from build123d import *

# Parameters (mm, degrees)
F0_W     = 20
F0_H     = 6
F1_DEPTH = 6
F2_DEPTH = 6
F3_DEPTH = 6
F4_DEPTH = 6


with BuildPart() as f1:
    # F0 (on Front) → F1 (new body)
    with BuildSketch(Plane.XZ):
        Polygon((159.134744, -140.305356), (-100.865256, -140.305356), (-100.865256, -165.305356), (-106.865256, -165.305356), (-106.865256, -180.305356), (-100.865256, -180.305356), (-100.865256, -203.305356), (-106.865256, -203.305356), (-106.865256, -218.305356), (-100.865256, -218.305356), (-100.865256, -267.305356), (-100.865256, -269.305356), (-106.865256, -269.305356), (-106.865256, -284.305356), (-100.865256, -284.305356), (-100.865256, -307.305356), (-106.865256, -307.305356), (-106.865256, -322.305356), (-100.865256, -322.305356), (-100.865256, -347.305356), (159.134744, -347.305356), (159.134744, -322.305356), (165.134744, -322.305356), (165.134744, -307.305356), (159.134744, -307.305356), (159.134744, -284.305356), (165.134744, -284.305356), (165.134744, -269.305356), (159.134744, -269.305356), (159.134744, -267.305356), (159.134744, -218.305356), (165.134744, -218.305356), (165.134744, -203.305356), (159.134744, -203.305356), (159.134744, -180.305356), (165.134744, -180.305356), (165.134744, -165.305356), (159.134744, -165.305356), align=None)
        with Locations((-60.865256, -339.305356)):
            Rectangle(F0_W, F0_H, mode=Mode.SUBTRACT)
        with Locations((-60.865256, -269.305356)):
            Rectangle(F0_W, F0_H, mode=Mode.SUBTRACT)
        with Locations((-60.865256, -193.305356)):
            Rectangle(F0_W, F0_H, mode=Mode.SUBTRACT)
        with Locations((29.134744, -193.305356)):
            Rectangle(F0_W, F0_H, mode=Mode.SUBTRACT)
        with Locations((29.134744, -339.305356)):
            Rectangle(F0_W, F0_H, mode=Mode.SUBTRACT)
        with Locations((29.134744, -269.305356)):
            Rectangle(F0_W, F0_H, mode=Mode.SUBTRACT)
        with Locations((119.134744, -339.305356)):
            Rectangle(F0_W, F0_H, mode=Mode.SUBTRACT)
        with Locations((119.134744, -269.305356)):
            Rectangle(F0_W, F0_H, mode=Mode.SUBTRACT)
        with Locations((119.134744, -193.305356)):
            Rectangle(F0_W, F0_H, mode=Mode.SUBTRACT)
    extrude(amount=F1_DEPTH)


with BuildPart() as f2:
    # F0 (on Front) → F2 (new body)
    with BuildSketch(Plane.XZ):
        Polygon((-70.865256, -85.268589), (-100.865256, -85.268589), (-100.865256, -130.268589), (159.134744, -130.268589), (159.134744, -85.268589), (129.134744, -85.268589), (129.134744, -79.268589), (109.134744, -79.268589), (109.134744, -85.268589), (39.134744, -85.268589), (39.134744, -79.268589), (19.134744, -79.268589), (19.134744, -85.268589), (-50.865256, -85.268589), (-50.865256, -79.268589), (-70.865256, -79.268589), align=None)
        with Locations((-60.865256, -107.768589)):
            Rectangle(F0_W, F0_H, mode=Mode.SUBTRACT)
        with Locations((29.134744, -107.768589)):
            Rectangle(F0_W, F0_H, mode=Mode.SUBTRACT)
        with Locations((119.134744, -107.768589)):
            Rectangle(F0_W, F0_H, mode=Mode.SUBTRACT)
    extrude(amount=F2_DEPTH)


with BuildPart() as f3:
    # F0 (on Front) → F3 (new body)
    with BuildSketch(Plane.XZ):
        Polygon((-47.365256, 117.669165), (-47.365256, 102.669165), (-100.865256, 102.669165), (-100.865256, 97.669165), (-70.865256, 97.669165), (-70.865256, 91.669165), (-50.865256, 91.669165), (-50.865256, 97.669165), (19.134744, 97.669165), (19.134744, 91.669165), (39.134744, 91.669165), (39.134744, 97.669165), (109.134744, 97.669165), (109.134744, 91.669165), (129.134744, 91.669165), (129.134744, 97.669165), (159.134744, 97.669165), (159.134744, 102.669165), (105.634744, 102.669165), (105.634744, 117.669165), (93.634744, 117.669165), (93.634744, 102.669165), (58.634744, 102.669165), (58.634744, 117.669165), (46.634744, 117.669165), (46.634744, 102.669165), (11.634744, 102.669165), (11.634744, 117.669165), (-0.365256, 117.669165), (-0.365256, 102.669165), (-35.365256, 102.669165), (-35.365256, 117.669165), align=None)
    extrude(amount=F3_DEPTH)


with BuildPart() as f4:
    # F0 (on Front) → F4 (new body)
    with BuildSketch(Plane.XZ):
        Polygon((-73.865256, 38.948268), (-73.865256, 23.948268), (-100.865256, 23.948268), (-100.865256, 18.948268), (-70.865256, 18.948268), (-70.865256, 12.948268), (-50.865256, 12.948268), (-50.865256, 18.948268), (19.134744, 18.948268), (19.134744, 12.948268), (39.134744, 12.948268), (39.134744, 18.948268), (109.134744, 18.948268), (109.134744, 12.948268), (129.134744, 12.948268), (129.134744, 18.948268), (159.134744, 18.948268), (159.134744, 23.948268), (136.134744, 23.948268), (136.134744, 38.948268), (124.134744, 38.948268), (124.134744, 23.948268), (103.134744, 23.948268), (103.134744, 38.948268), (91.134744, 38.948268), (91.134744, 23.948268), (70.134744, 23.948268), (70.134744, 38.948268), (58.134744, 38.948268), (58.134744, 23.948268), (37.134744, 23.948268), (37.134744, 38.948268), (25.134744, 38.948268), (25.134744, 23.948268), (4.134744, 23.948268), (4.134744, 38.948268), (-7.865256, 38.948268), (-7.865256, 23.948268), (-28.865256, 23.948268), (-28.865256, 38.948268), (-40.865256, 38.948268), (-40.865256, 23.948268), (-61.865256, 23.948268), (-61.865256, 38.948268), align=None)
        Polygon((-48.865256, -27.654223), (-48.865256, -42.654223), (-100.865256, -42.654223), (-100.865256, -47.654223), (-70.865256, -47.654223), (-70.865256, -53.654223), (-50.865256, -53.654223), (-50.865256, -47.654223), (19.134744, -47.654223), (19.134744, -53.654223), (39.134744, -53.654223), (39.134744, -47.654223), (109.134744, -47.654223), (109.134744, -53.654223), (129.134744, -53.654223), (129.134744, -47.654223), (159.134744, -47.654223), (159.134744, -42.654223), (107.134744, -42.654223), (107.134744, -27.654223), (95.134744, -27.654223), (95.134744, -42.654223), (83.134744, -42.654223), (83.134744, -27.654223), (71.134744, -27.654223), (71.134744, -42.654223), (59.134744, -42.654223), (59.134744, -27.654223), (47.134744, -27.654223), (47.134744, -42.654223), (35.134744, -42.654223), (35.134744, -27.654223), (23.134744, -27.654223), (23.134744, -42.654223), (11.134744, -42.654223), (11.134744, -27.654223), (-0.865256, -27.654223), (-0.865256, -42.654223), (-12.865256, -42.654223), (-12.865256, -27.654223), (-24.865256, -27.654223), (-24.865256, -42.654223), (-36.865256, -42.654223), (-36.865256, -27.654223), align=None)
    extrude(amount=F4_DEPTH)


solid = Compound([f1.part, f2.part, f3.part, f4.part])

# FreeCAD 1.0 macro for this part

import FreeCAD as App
import Part
import Sketcher
from FreeCAD import Vector


def add_polygon(sketch, points):
    """Adds a closed chain of lines whose ends are joined by coincident constraints."""
    first, n = sketch.GeometryCount, len(points)
    for a, b in zip(points, points[1:] + points[:1]):
        sketch.addGeometry(Part.LineSegment(App.Vector(*a, 0), App.Vector(*b, 0)), False)
    for i in range(n):
        sketch.addConstraint(Sketcher.Constraint("Coincident", first + i, 2, first + (i + 1) % n, 1))

doc = App.newDocument("Part")
params = doc.addObject("Spreadsheet::Sheet", "Params")
for row, (alias, value) in enumerate([
    ("sketch1_width", "260 mm"),
    ("sketch1_width2", "6 mm"),
    ("sketch1_width3", "20 mm"),
    ("sketch1_height", "25 mm"),
    ("sketch1_height2", "15 mm"),
    ("pad1_length", "6 mm"),
    ("sketch2_width", "30 mm"),
    ("sketch2_width2", "260 mm"),
    ("sketch2_width3", "20 mm"),
    ("sketch2_height", "45 mm"),
    ("sketch2_height2", "6 mm"),
    ("pad2_length", "6 mm"),
    ("sketch3_width", "30 mm"),
    ("sketch3_width2", "20 mm"),
    ("sketch3_width3", "70 mm"),
    ("sketch3_width4", "12 mm"),
    ("sketch3_width5", "35 mm"),
    ("pad3_length", "6 mm"),
    ("sketch4_width", "27 mm"),
    ("sketch4_width2", "30 mm"),
    ("sketch4_width3", "20 mm"),
    ("sketch4_width4", "70 mm"),
    ("sketch4_width5", "23 mm"),
    ("pad4_length", "6 mm"),
], start=1):
    params.set(f"A{row}", alias)
    params.set(f"B{row}", "=" + value)
    params.setAlias(f"B{row}", alias)

body = doc.addObject("PartDesign::Body", "Body")

# Sketch on XZ plane
sketch1 = body.newObject("Sketcher::SketchObject", "Sketch")
sketch1.AttachmentSupport = (doc.getObject("XZ_Plane"), [""])
sketch1.MapMode = "FlatFace"
add_polygon(sketch1, [(159.134744, -140.305356), (-100.865256, -140.305356), (-100.865256, -165.305356), (-106.865256, -165.305356), (-106.865256, -180.305356), (-100.865256, -180.305356), (-100.865256, -203.305356), (-106.865256, -203.305356), (-106.865256, -218.305356), (-100.865256, -218.305356), (-100.865256, -269.305356), (-106.865256, -269.305356), (-106.865256, -284.305356), (-100.865256, -284.305356), (-100.865256, -307.305356), (-106.865256, -307.305356), (-106.865256, -322.305356), (-100.865256, -322.305356), (-100.865256, -347.305356), (159.134744, -347.305356), (159.134744, -322.305356), (165.134744, -322.305356), (165.134744, -307.305356), (159.134744, -307.305356), (159.134744, -284.305356), (165.134744, -284.305356), (165.134744, -269.305356), (159.134744, -269.305356), (159.134744, -218.305356), (165.134744, -218.305356), (165.134744, -203.305356), (159.134744, -203.305356), (159.134744, -180.305356), (165.134744, -180.305356), (165.134744, -165.305356), (159.134744, -165.305356)])  # lines 0-35
add_polygon(sketch1, [(-50.865256, -342.305356), (-70.865256, -342.305356), (-70.865256, -336.305356), (-50.865256, -336.305356)])  # lines 36-39
add_polygon(sketch1, [(-50.865256, -272.305356), (-70.865256, -272.305356), (-70.865256, -266.305356), (-50.865256, -266.305356)])  # lines 40-43
add_polygon(sketch1, [(39.134744, -342.305356), (19.134744, -342.305356), (19.134744, -336.305356), (39.134744, -336.305356)])  # lines 44-47
add_polygon(sketch1, [(129.134744, -342.305356), (109.134744, -342.305356), (109.134744, -336.305356), (129.134744, -336.305356)])  # lines 48-51
add_polygon(sketch1, [(39.134744, -272.305356), (19.134744, -272.305356), (19.134744, -266.305356), (39.134744, -266.305356)])  # lines 52-55
add_polygon(sketch1, [(129.134744, -272.305356), (109.134744, -272.305356), (109.134744, -266.305356), (129.134744, -266.305356)])  # lines 56-59
add_polygon(sketch1, [(-50.865256, -196.305356), (-70.865256, -196.305356), (-70.865256, -190.305356), (-50.865256, -190.305356)])  # lines 60-63
add_polygon(sketch1, [(39.134744, -196.305356), (19.134744, -196.305356), (19.134744, -190.305356), (39.134744, -190.305356)])  # lines 64-67
add_polygon(sketch1, [(129.134744, -196.305356), (109.134744, -196.305356), (109.134744, -190.305356), (129.134744, -190.305356)])  # lines 68-71
sketch1.addConstraint(Sketcher.Constraint("Horizontal", 0))
sketch1.addConstraint(Sketcher.Constraint("Vertical", 1))
sketch1.addConstraint(Sketcher.Constraint("Horizontal", 2))
sketch1.addConstraint(Sketcher.Constraint("Vertical", 3))
sketch1.addConstraint(Sketcher.Constraint("Horizontal", 4))
sketch1.addConstraint(Sketcher.Constraint("Vertical", 5))
sketch1.addConstraint(Sketcher.Constraint("Horizontal", 6))
sketch1.addConstraint(Sketcher.Constraint("Vertical", 7))
sketch1.addConstraint(Sketcher.Constraint("Horizontal", 8))
sketch1.addConstraint(Sketcher.Constraint("Vertical", 9))
sketch1.addConstraint(Sketcher.Constraint("Horizontal", 10))
sketch1.addConstraint(Sketcher.Constraint("Vertical", 11))
sketch1.addConstraint(Sketcher.Constraint("Horizontal", 12))
sketch1.addConstraint(Sketcher.Constraint("Vertical", 13))
sketch1.addConstraint(Sketcher.Constraint("Horizontal", 14))
sketch1.addConstraint(Sketcher.Constraint("Vertical", 15))
sketch1.addConstraint(Sketcher.Constraint("Horizontal", 16))
sketch1.addConstraint(Sketcher.Constraint("Vertical", 17))
sketch1.addConstraint(Sketcher.Constraint("Horizontal", 18))
sketch1.addConstraint(Sketcher.Constraint("Vertical", 19))
sketch1.addConstraint(Sketcher.Constraint("Horizontal", 20))
sketch1.addConstraint(Sketcher.Constraint("Vertical", 21))
sketch1.addConstraint(Sketcher.Constraint("Horizontal", 22))
sketch1.addConstraint(Sketcher.Constraint("Vertical", 23))
sketch1.addConstraint(Sketcher.Constraint("Horizontal", 24))
sketch1.addConstraint(Sketcher.Constraint("Vertical", 25))
sketch1.addConstraint(Sketcher.Constraint("Horizontal", 26))
sketch1.addConstraint(Sketcher.Constraint("Vertical", 27))
sketch1.addConstraint(Sketcher.Constraint("Horizontal", 28))
sketch1.addConstraint(Sketcher.Constraint("Vertical", 29))
sketch1.addConstraint(Sketcher.Constraint("Horizontal", 30))
sketch1.addConstraint(Sketcher.Constraint("Vertical", 31))
sketch1.addConstraint(Sketcher.Constraint("Horizontal", 32))
sketch1.addConstraint(Sketcher.Constraint("Vertical", 33))
sketch1.addConstraint(Sketcher.Constraint("Horizontal", 34))
sketch1.addConstraint(Sketcher.Constraint("Vertical", 35))
sketch1.addConstraint(Sketcher.Constraint("Horizontal", 36))
sketch1.addConstraint(Sketcher.Constraint("Vertical", 37))
sketch1.addConstraint(Sketcher.Constraint("Horizontal", 38))
sketch1.addConstraint(Sketcher.Constraint("Vertical", 39))
sketch1.addConstraint(Sketcher.Constraint("Horizontal", 40))
sketch1.addConstraint(Sketcher.Constraint("Vertical", 41))
sketch1.addConstraint(Sketcher.Constraint("Horizontal", 42))
sketch1.addConstraint(Sketcher.Constraint("Vertical", 43))
sketch1.addConstraint(Sketcher.Constraint("Horizontal", 44))
sketch1.addConstraint(Sketcher.Constraint("Vertical", 45))
sketch1.addConstraint(Sketcher.Constraint("Horizontal", 46))
sketch1.addConstraint(Sketcher.Constraint("Vertical", 47))
sketch1.addConstraint(Sketcher.Constraint("Horizontal", 48))
sketch1.addConstraint(Sketcher.Constraint("Vertical", 49))
sketch1.addConstraint(Sketcher.Constraint("Horizontal", 50))
sketch1.addConstraint(Sketcher.Constraint("Vertical", 51))
sketch1.addConstraint(Sketcher.Constraint("Horizontal", 52))
sketch1.addConstraint(Sketcher.Constraint("Vertical", 53))
sketch1.addConstraint(Sketcher.Constraint("Horizontal", 54))
sketch1.addConstraint(Sketcher.Constraint("Vertical", 55))
sketch1.addConstraint(Sketcher.Constraint("Horizontal", 56))
sketch1.addConstraint(Sketcher.Constraint("Vertical", 57))
sketch1.addConstraint(Sketcher.Constraint("Horizontal", 58))
sketch1.addConstraint(Sketcher.Constraint("Vertical", 59))
sketch1.addConstraint(Sketcher.Constraint("Horizontal", 60))
sketch1.addConstraint(Sketcher.Constraint("Vertical", 61))
sketch1.addConstraint(Sketcher.Constraint("Horizontal", 62))
sketch1.addConstraint(Sketcher.Constraint("Vertical", 63))
sketch1.addConstraint(Sketcher.Constraint("Horizontal", 64))
sketch1.addConstraint(Sketcher.Constraint("Vertical", 65))
sketch1.addConstraint(Sketcher.Constraint("Horizontal", 66))
sketch1.addConstraint(Sketcher.Constraint("Vertical", 67))
sketch1.addConstraint(Sketcher.Constraint("Horizontal", 68))
sketch1.addConstraint(Sketcher.Constraint("Vertical", 69))
sketch1.addConstraint(Sketcher.Constraint("Horizontal", 70))
sketch1.addConstraint(Sketcher.Constraint("Vertical", 71))
sketch1.addConstraint(Sketcher.Constraint("Horizontal", 16, 2, 19, 2))
sketch1.addConstraint(Sketcher.Constraint("Horizontal", 14, 2, 21, 2))
sketch1.addConstraint(Sketcher.Constraint("Horizontal", 12, 2, 23, 2))
sketch1.addConstraint(Sketcher.Constraint("Horizontal", 10, 2, 25, 2))
sketch1.addConstraint(Sketcher.Constraint("Horizontal", 8, 2, 27, 2))
sketch1.addConstraint(Sketcher.Constraint("Horizontal", 6, 2, 29, 2))
sketch1.addConstraint(Sketcher.Constraint("Horizontal", 4, 2, 31, 2))
sketch1.addConstraint(Sketcher.Constraint("Horizontal", 2, 2, 33, 2))
sketch1.addConstraint(Sketcher.Constraint("Horizontal", 39, 2, 44, 2))
sketch1.addConstraint(Sketcher.Constraint("Horizontal", 38, 2, 45, 2))
sketch1.addConstraint(Sketcher.Constraint("Horizontal", 47, 2, 48, 2))
sketch1.addConstraint(Sketcher.Constraint("Horizontal", 46, 2, 49, 2))
sketch1.addConstraint(Sketcher.Constraint("Horizontal", 43, 2, 52, 2))
sketch1.addConstraint(Sketcher.Constraint("Horizontal", 42, 2, 53, 2))
sketch1.addConstraint(Sketcher.Constraint("Horizontal", 55, 2, 56, 2))
sketch1.addConstraint(Sketcher.Constraint("Horizontal", 54, 2, 57, 2))
sketch1.addConstraint(Sketcher.Constraint("Horizontal", 63, 2, 64, 2))
sketch1.addConstraint(Sketcher.Constraint("Horizontal", 62, 2, 65, 2))
sketch1.addConstraint(Sketcher.Constraint("Horizontal", 67, 2, 68, 2))
sketch1.addConstraint(Sketcher.Constraint("Horizontal", 66, 2, 69, 2))
sketch1.addConstraint(Sketcher.Constraint("Vertical", 1, 2, 4, 2))
sketch1.addConstraint(Sketcher.Constraint("Vertical", 3, 2, 6, 2))
sketch1.addConstraint(Sketcher.Constraint("Vertical", 5, 2, 8, 2))
sketch1.addConstraint(Sketcher.Constraint("Vertical", 7, 2, 10, 2))
sketch1.addConstraint(Sketcher.Constraint("Vertical", 9, 2, 12, 2))
sketch1.addConstraint(Sketcher.Constraint("Vertical", 11, 2, 14, 2))
sketch1.addConstraint(Sketcher.Constraint("Vertical", 13, 2, 16, 2))
sketch1.addConstraint(Sketcher.Constraint("Vertical", 19, 2, 22, 2))
sketch1.addConstraint(Sketcher.Constraint("Vertical", 21, 2, 24, 2))
sketch1.addConstraint(Sketcher.Constraint("Vertical", 23, 2, 26, 2))
sketch1.addConstraint(Sketcher.Constraint("Vertical", 25, 2, 28, 2))
sketch1.addConstraint(Sketcher.Constraint("Vertical", 27, 2, 30, 2))
sketch1.addConstraint(Sketcher.Constraint("Vertical", 29, 2, 32, 2))
sketch1.addConstraint(Sketcher.Constraint("Vertical", 31, 2, 34, 2))
sketch1.addConstraint(Sketcher.Constraint("Vertical", 37, 2, 40, 2))
sketch1.addConstraint(Sketcher.Constraint("Vertical", 39, 2, 42, 2))
sketch1.addConstraint(Sketcher.Constraint("Vertical", 45, 2, 52, 2))
sketch1.addConstraint(Sketcher.Constraint("Vertical", 47, 2, 54, 2))
sketch1.addConstraint(Sketcher.Constraint("Vertical", 49, 2, 56, 2))
sketch1.addConstraint(Sketcher.Constraint("Vertical", 51, 2, 58, 2))
sketch1.addConstraint(Sketcher.Constraint("Vertical", 41, 2, 60, 2))
sketch1.addConstraint(Sketcher.Constraint("Vertical", 43, 2, 62, 2))
sketch1.addConstraint(Sketcher.Constraint("Vertical", 53, 2, 64, 2))
sketch1.addConstraint(Sketcher.Constraint("Vertical", 55, 2, 66, 2))
sketch1.addConstraint(Sketcher.Constraint("Vertical", 57, 2, 68, 2))
sketch1.addConstraint(Sketcher.Constraint("Vertical", 59, 2, 70, 2))
sketch1.addConstraint(Sketcher.Constraint("Equal", 16, 20))
sketch1.addConstraint(Sketcher.Constraint("Equal", 42, 44))
sketch1.addConstraint(Sketcher.Constraint("Equal", 46, 48))
sketch1.addConstraint(Sketcher.Constraint("Equal", 3, 7))
sketch1.addConstraint(Sketcher.Constraint("Equal", 7, 11))
sketch1.addConstraint(Sketcher.Constraint("Equal", 5, 13))
sketch1.addConstraint(Sketcher.Constraint("Equal", 11, 15))
sketch1.addConstraint(Sketcher.Constraint("Equal", 1, 17))
sketch1.addConstraint(Sketcher.Constraint("Equal", 34, 37))
sketch1.addConstraint(Sketcher.Constraint("Equal", 39, 41))
sketch1.addConstraint(Sketcher.Constraint("Equal", 59, 61))
sketch1.addConstraint(Sketcher.Constraint("DistanceX", 0, 2, 0, 1, 260.0))
sketch1.addConstraint(Sketcher.Constraint("DistanceX", 2, 2, 2, 1, 6.0))
sketch1.addConstraint(Sketcher.Constraint("DistanceX", 36, 2, 36, 1, 20.0))
sketch1.addConstraint(Sketcher.Constraint("DistanceY", 1, 2, 1, 1, 25.0))
sketch1.addConstraint(Sketcher.Constraint("DistanceY", 3, 2, 3, 1, 15.0))
sketch1.addConstraint(Sketcher.Constraint("DistanceY", 5, 2, 5, 1, 23.0))
sketch1.addConstraint(Sketcher.Constraint("DistanceY", 9, 2, 9, 1, 51.0))
sketch1.addConstraint(Sketcher.Constraint("DistanceX", 0, 2, -1, 1, 100.865256))
sketch1.addConstraint(Sketcher.Constraint("DistanceY", 0, 2, -1, 1, 140.305356))
sketch1.addConstraint(Sketcher.Constraint("DistanceX", 36, 2, -1, 1, 70.865256))
sketch1.addConstraint(Sketcher.Constraint("DistanceY", 36, 2, -1, 1, 342.305356))
sketch1.addConstraint(Sketcher.Constraint("DistanceY", 40, 2, -1, 1, 272.305356))
sketch1.addConstraint(Sketcher.Constraint("DistanceX", -1, 1, 44, 2, 19.134744))
sketch1.addConstraint(Sketcher.Constraint("DistanceX", -1, 1, 48, 2, 109.134744))
sketch1.addConstraint(Sketcher.Constraint("DistanceY", 60, 2, -1, 1, 196.305356))
sketch1.setExpression("Constraints[201]", "Params.sketch1_width")
sketch1.setExpression("Constraints[202]", "Params.sketch1_width2")
sketch1.setExpression("Constraints[203]", "Params.sketch1_width3")
sketch1.setExpression("Constraints[204]", "Params.sketch1_height")
sketch1.setExpression("Constraints[205]", "Params.sketch1_height2")
pad1 = body.newObject("PartDesign::Pad", "Pad")
pad1.Profile = sketch1
pad1.setExpression("Length", "Params.pad1_length")
body2 = doc.addObject("PartDesign::Body", "Body001")

# Sketch on XZ plane
sketch2 = body2.newObject("Sketcher::SketchObject", "Sketch001")
sketch2.AttachmentSupport = (doc.getObject("XZ_Plane001"), [""])
sketch2.MapMode = "FlatFace"
add_polygon(sketch2, [(-70.865256, -85.268589), (-100.865256, -85.268589), (-100.865256, -130.268589), (159.134744, -130.268589), (159.134744, -85.268589), (129.134744, -85.268589), (129.134744, -79.268589), (109.134744, -79.268589), (109.134744, -85.268589), (39.134744, -85.268589), (39.134744, -79.268589), (19.134744, -79.268589), (19.134744, -85.268589), (-50.865256, -85.268589), (-50.865256, -79.268589), (-70.865256, -79.268589)])  # lines 0-15
add_polygon(sketch2, [(-50.865256, -110.768589), (-70.865256, -110.768589), (-70.865256, -104.768589), (-50.865256, -104.768589)])  # lines 16-19
add_polygon(sketch2, [(39.134744, -110.768589), (19.134744, -110.768589), (19.134744, -104.768589), (39.134744, -104.768589)])  # lines 20-23
add_polygon(sketch2, [(129.134744, -110.768589), (109.134744, -110.768589), (109.134744, -104.768589), (129.134744, -104.768589)])  # lines 24-27
sketch2.addConstraint(Sketcher.Constraint("Horizontal", 0))
sketch2.addConstraint(Sketcher.Constraint("Vertical", 1))
sketch2.addConstraint(Sketcher.Constraint("Horizontal", 2))
sketch2.addConstraint(Sketcher.Constraint("Vertical", 3))
sketch2.addConstraint(Sketcher.Constraint("Horizontal", 4))
sketch2.addConstraint(Sketcher.Constraint("Vertical", 5))
sketch2.addConstraint(Sketcher.Constraint("Horizontal", 6))
sketch2.addConstraint(Sketcher.Constraint("Vertical", 7))
sketch2.addConstraint(Sketcher.Constraint("Horizontal", 8))
sketch2.addConstraint(Sketcher.Constraint("Vertical", 9))
sketch2.addConstraint(Sketcher.Constraint("Horizontal", 10))
sketch2.addConstraint(Sketcher.Constraint("Vertical", 11))
sketch2.addConstraint(Sketcher.Constraint("Horizontal", 12))
sketch2.addConstraint(Sketcher.Constraint("Vertical", 13))
sketch2.addConstraint(Sketcher.Constraint("Horizontal", 14))
sketch2.addConstraint(Sketcher.Constraint("Vertical", 15))
sketch2.addConstraint(Sketcher.Constraint("Horizontal", 16))
sketch2.addConstraint(Sketcher.Constraint("Vertical", 17))
sketch2.addConstraint(Sketcher.Constraint("Horizontal", 18))
sketch2.addConstraint(Sketcher.Constraint("Vertical", 19))
sketch2.addConstraint(Sketcher.Constraint("Horizontal", 20))
sketch2.addConstraint(Sketcher.Constraint("Vertical", 21))
sketch2.addConstraint(Sketcher.Constraint("Horizontal", 22))
sketch2.addConstraint(Sketcher.Constraint("Vertical", 23))
sketch2.addConstraint(Sketcher.Constraint("Horizontal", 24))
sketch2.addConstraint(Sketcher.Constraint("Vertical", 25))
sketch2.addConstraint(Sketcher.Constraint("Horizontal", 26))
sketch2.addConstraint(Sketcher.Constraint("Vertical", 27))
sketch2.addConstraint(Sketcher.Constraint("Horizontal", 0, 2, 3, 2))
sketch2.addConstraint(Sketcher.Constraint("Horizontal", 4, 2, 7, 2))
sketch2.addConstraint(Sketcher.Constraint("Horizontal", 6, 2, 9, 2))
sketch2.addConstraint(Sketcher.Constraint("Horizontal", 8, 2, 11, 2))
sketch2.addConstraint(Sketcher.Constraint("Horizontal", 10, 2, 13, 2))
sketch2.addConstraint(Sketcher.Constraint("Horizontal", 19, 2, 20, 2))
sketch2.addConstraint(Sketcher.Constraint("Horizontal", 18, 2, 21, 2))
sketch2.addConstraint(Sketcher.Constraint("Horizontal", 23, 2, 24, 2))
sketch2.addConstraint(Sketcher.Constraint("Horizontal", 22, 2, 25, 2))
sketch2.addConstraint(Sketcher.Constraint("Vertical", 15, 2, 16, 2))
sketch2.addConstraint(Sketcher.Constraint("Vertical", 13, 2, 18, 2))
sketch2.addConstraint(Sketcher.Constraint("Vertical", 11, 2, 20, 2))
sketch2.addConstraint(Sketcher.Constraint("Vertical", 9, 2, 22, 2))
sketch2.addConstraint(Sketcher.Constraint("Vertical", 7, 2, 24, 2))
sketch2.addConstraint(Sketcher.Constraint("Vertical", 5, 2, 26, 2))
sketch2.addConstraint(Sketcher.Constraint("Equal", 0, 4))
sketch2.addConstraint(Sketcher.Constraint("Equal", 6, 10))
sketch2.addConstraint(Sketcher.Constraint("Equal", 8, 12))
sketch2.addConstraint(Sketcher.Constraint("Equal", 10, 14))
sketch2.addConstraint(Sketcher.Constraint("Equal", 15, 17))
sketch2.addConstraint(Sketcher.Constraint("DistanceX", 0, 2, 0, 1, 30.0))
sketch2.addConstraint(Sketcher.Constraint("DistanceX", 2, 1, 2, 2, 260.0))
sketch2.addConstraint(Sketcher.Constraint("DistanceX", 6, 2, 6, 1, 20.0))
sketch2.addConstraint(Sketcher.Constraint("DistanceY", 1, 2, 1, 1, 45.0))
sketch2.addConstraint(Sketcher.Constraint("DistanceY", 5, 1, 5, 2, 6.0))
sketch2.addConstraint(Sketcher.Constraint("DistanceY", 16, 2, 15, 2, 25.5))
sketch2.addConstraint(Sketcher.Constraint("DistanceY", 0, 2, -1, 1, 85.268589))
sketch2.addConstraint(Sketcher.Constraint("DistanceX", 0, 2, -1, 1, 100.865256))
sketch2.setExpression("Constraints[76]", "Params.sketch2_width")
sketch2.setExpression("Constraints[77]", "Params.sketch2_width2")
sketch2.setExpression("Constraints[78]", "Params.sketch2_width3")
sketch2.setExpression("Constraints[79]", "Params.sketch2_height")
sketch2.setExpression("Constraints[80]", "Params.sketch2_height2")
pad2 = body2.newObject("PartDesign::Pad", "Pad001")
pad2.Profile = sketch2
pad2.setExpression("Length", "Params.pad2_length")
body3 = doc.addObject("PartDesign::Body", "Body002")

# Sketch on XZ plane
sketch3 = body3.newObject("Sketcher::SketchObject", "Sketch002")
sketch3.AttachmentSupport = (doc.getObject("XZ_Plane002"), [""])
sketch3.MapMode = "FlatFace"
add_polygon(sketch3, [(-47.365256, 117.669165), (-47.365256, 102.669165), (-100.865256, 102.669165), (-100.865256, 97.669165), (-70.865256, 97.669165), (-70.865256, 91.669165), (-50.865256, 91.669165), (-50.865256, 97.669165), (19.134744, 97.669165), (19.134744, 91.669165), (39.134744, 91.669165), (39.134744, 97.669165), (109.134744, 97.669165), (109.134744, 91.669165), (129.134744, 91.669165), (129.134744, 97.669165), (159.134744, 97.669165), (159.134744, 102.669165), (105.634744, 102.669165), (105.634744, 117.669165), (93.634744, 117.669165), (93.634744, 102.669165), (58.634744, 102.669165), (58.634744, 117.669165), (46.634744, 117.669165), (46.634744, 102.669165), (11.634744, 102.669165), (11.634744, 117.669165), (-0.365256, 117.669165), (-0.365256, 102.669165), (-35.365256, 102.669165), (-35.365256, 117.669165)])  # lines 0-31
sketch3.addConstraint(Sketcher.Constraint("Vertical", 0))
sketch3.addConstraint(Sketcher.Constraint("Horizontal", 1))
sketch3.addConstraint(Sketcher.Constraint("Vertical", 2))
sketch3.addConstraint(Sketcher.Constraint("Horizontal", 3))
sketch3.addConstraint(Sketcher.Constraint("Vertical", 4))
sketch3.addConstraint(Sketcher.Constraint("Horizontal", 5))
sketch3.addConstraint(Sketcher.Constraint("Vertical", 6))
sketch3.addConstraint(Sketcher.Constraint("Horizontal", 7))
sketch3.addConstraint(Sketcher.Constraint("Vertical", 8))
sketch3.addConstraint(Sketcher.Constraint("Horizontal", 9))
sketch3.addConstraint(Sketcher.Constraint("Vertical", 10))
sketch3.addConstraint(Sketcher.Constraint("Horizontal", 11))
sketch3.addConstraint(Sketcher.Constraint("Vertical", 12))
sketch3.addConstraint(Sketcher.Constraint("Horizontal", 13))
sketch3.addConstraint(Sketcher.Constraint("Vertical", 14))
sketch3.addConstraint(Sketcher.Constraint("Horizontal", 15))
sketch3.addConstraint(Sketcher.Constraint("Vertical", 16))
sketch3.addConstraint(Sketcher.Constraint("Horizontal", 17))
sketch3.addConstraint(Sketcher.Constraint("Vertical", 18))
sketch3.addConstraint(Sketcher.Constraint("Horizontal", 19))
sketch3.addConstraint(Sketcher.Constraint("Vertical", 20))
sketch3.addConstraint(Sketcher.Constraint("Horizontal", 21))
sketch3.addConstraint(Sketcher.Constraint("Vertical", 22))
sketch3.addConstraint(Sketcher.Constraint("Horizontal", 23))
sketch3.addConstraint(Sketcher.Constraint("Vertical", 24))
sketch3.addConstraint(Sketcher.Constraint("Horizontal", 25))
sketch3.addConstraint(Sketcher.Constraint("Vertical", 26))
sketch3.addConstraint(Sketcher.Constraint("Horizontal", 27))
sketch3.addConstraint(Sketcher.Constraint("Vertical", 28))
sketch3.addConstraint(Sketcher.Constraint("Horizontal", 29))
sketch3.addConstraint(Sketcher.Constraint("Vertical", 30))
sketch3.addConstraint(Sketcher.Constraint("Horizontal", 31))
sketch3.addConstraint(Sketcher.Constraint("Horizontal", 3, 2, 6, 2))
sketch3.addConstraint(Sketcher.Constraint("Horizontal", 5, 2, 8, 2))
sketch3.addConstraint(Sketcher.Constraint("Horizontal", 7, 2, 10, 2))
sketch3.addConstraint(Sketcher.Constraint("Horizontal", 9, 2, 12, 2))
sketch3.addConstraint(Sketcher.Constraint("Horizontal", 11, 2, 14, 2))
sketch3.addConstraint(Sketcher.Constraint("Horizontal", 1, 2, 16, 2))
sketch3.addConstraint(Sketcher.Constraint("Horizontal", 17, 2, 20, 2))
sketch3.addConstraint(Sketcher.Constraint("Horizontal", 19, 2, 22, 2))
sketch3.addConstraint(Sketcher.Constraint("Horizontal", 21, 2, 24, 2))
sketch3.addConstraint(Sketcher.Constraint("Horizontal", 23, 2, 26, 2))
sketch3.addConstraint(Sketcher.Constraint("Horizontal", 25, 2, 28, 2))
sketch3.addConstraint(Sketcher.Constraint("Horizontal", 27, 2, 30, 2))
sketch3.addConstraint(Sketcher.Constraint("Equal", 5, 9))
sketch3.addConstraint(Sketcher.Constraint("Equal", 7, 11))
sketch3.addConstraint(Sketcher.Constraint("Equal", 9, 13))
sketch3.addConstraint(Sketcher.Constraint("Equal", 3, 15))
sketch3.addConstraint(Sketcher.Constraint("Equal", 1, 17))
sketch3.addConstraint(Sketcher.Constraint("Equal", 19, 23))
sketch3.addConstraint(Sketcher.Constraint("Equal", 21, 25))
sketch3.addConstraint(Sketcher.Constraint("Equal", 23, 27))
sketch3.addConstraint(Sketcher.Constraint("Equal", 25, 29))
sketch3.addConstraint(Sketcher.Constraint("Equal", 27, 31))
sketch3.addConstraint(Sketcher.Constraint("DistanceX", 3, 1, 3, 2, 30.0))
sketch3.addConstraint(Sketcher.Constraint("DistanceX", 5, 1, 5, 2, 20.0))
sketch3.addConstraint(Sketcher.Constraint("DistanceX", 7, 1, 7, 2, 70.0))
sketch3.addConstraint(Sketcher.Constraint("DistanceX", 19, 2, 19, 1, 12.0))
sketch3.addConstraint(Sketcher.Constraint("DistanceX", 21, 2, 21, 1, 35.0))
sketch3.addConstraint(Sketcher.Constraint("DistanceY", 0, 2, 0, 1, 15.0))
sketch3.addConstraint(Sketcher.Constraint("DistanceY", 2, 2, 2, 1, 5.0))
sketch3.addConstraint(Sketcher.Constraint("DistanceY", 4, 2, 4, 1, 6.0))
sketch3.addConstraint(Sketcher.Constraint("DistanceX", 0, 2, -1, 1, 47.365256))
sketch3.addConstraint(Sketcher.Constraint("DistanceY", -1, 1, 0, 2, 102.669165))
sketch3.setExpression("Constraints[86]", "Params.sketch3_width")
sketch3.setExpression("Constraints[87]", "Params.sketch3_width2")
sketch3.setExpression("Constraints[88]", "Params.sketch3_width3")
sketch3.setExpression("Constraints[89]", "Params.sketch3_width4")
sketch3.setExpression("Constraints[90]", "Params.sketch3_width5")
pad3 = body3.newObject("PartDesign::Pad", "Pad002")
pad3.Profile = sketch3
pad3.setExpression("Length", "Params.pad3_length")
body4 = doc.addObject("PartDesign::Body", "Body003")
body4.AllowCompound = True

# Sketch on XZ plane
sketch4 = body4.newObject("Sketcher::SketchObject", "Sketch003")
sketch4.AttachmentSupport = (doc.getObject("XZ_Plane003"), [""])
sketch4.MapMode = "FlatFace"
add_polygon(sketch4, [(-73.865256, 38.948268), (-73.865256, 23.948268), (-100.865256, 23.948268), (-100.865256, 18.948268), (-70.865256, 18.948268), (-70.865256, 12.948268), (-50.865256, 12.948268), (-50.865256, 18.948268), (19.134744, 18.948268), (19.134744, 12.948268), (39.134744, 12.948268), (39.134744, 18.948268), (109.134744, 18.948268), (109.134744, 12.948268), (129.134744, 12.948268), (129.134744, 18.948268), (159.134744, 18.948268), (159.134744, 23.948268), (136.134744, 23.948268), (136.134744, 38.948268), (124.134744, 38.948268), (124.134744, 23.948268), (103.134744, 23.948268), (103.134744, 38.948268), (91.134744, 38.948268), (91.134744, 23.948268), (70.134744, 23.948268), (70.134744, 38.948268), (58.134744, 38.948268), (58.134744, 23.948268), (37.134744, 23.948268), (37.134744, 38.948268), (25.134744, 38.948268), (25.134744, 23.948268), (4.134744, 23.948268), (4.134744, 38.948268), (-7.865256, 38.948268), (-7.865256, 23.948268), (-28.865256, 23.948268), (-28.865256, 38.948268), (-40.865256, 38.948268), (-40.865256, 23.948268), (-61.865256, 23.948268), (-61.865256, 38.948268)])  # lines 0-43
add_polygon(sketch4, [(-48.865256, -27.654223), (-48.865256, -42.654223), (-100.865256, -42.654223), (-100.865256, -47.654223), (-70.865256, -47.654223), (-70.865256, -53.654223), (-50.865256, -53.654223), (-50.865256, -47.654223), (19.134744, -47.654223), (19.134744, -53.654223), (39.134744, -53.654223), (39.134744, -47.654223), (109.134744, -47.654223), (109.134744, -53.654223), (129.134744, -53.654223), (129.134744, -47.654223), (159.134744, -47.654223), (159.134744, -42.654223), (107.134744, -42.654223), (107.134744, -27.654223), (95.134744, -27.654223), (95.134744, -42.654223), (83.134744, -42.654223), (83.134744, -27.654223), (71.134744, -27.654223), (71.134744, -42.654223), (59.134744, -42.654223), (59.134744, -27.654223), (47.134744, -27.654223), (47.134744, -42.654223), (35.134744, -42.654223), (35.134744, -27.654223), (23.134744, -27.654223), (23.134744, -42.654223), (11.134744, -42.654223), (11.134744, -27.654223), (-0.865256, -27.654223), (-0.865256, -42.654223), (-12.865256, -42.654223), (-12.865256, -27.654223), (-24.865256, -27.654223), (-24.865256, -42.654223), (-36.865256, -42.654223), (-36.865256, -27.654223)])  # lines 44-87
sketch4.addConstraint(Sketcher.Constraint("Vertical", 0))
sketch4.addConstraint(Sketcher.Constraint("Horizontal", 1))
sketch4.addConstraint(Sketcher.Constraint("Vertical", 2))
sketch4.addConstraint(Sketcher.Constraint("Horizontal", 3))
sketch4.addConstraint(Sketcher.Constraint("Vertical", 4))
sketch4.addConstraint(Sketcher.Constraint("Horizontal", 5))
sketch4.addConstraint(Sketcher.Constraint("Vertical", 6))
sketch4.addConstraint(Sketcher.Constraint("Horizontal", 7))
sketch4.addConstraint(Sketcher.Constraint("Vertical", 8))
sketch4.addConstraint(Sketcher.Constraint("Horizontal", 9))
sketch4.addConstraint(Sketcher.Constraint("Vertical", 10))
sketch4.addConstraint(Sketcher.Constraint("Horizontal", 11))
sketch4.addConstraint(Sketcher.Constraint("Vertical", 12))
sketch4.addConstraint(Sketcher.Constraint("Horizontal", 13))
sketch4.addConstraint(Sketcher.Constraint("Vertical", 14))
sketch4.addConstraint(Sketcher.Constraint("Horizontal", 15))
sketch4.addConstraint(Sketcher.Constraint("Vertical", 16))
sketch4.addConstraint(Sketcher.Constraint("Horizontal", 17))
sketch4.addConstraint(Sketcher.Constraint("Vertical", 18))
sketch4.addConstraint(Sketcher.Constraint("Horizontal", 19))
sketch4.addConstraint(Sketcher.Constraint("Vertical", 20))
sketch4.addConstraint(Sketcher.Constraint("Horizontal", 21))
sketch4.addConstraint(Sketcher.Constraint("Vertical", 22))
sketch4.addConstraint(Sketcher.Constraint("Horizontal", 23))
sketch4.addConstraint(Sketcher.Constraint("Vertical", 24))
sketch4.addConstraint(Sketcher.Constraint("Horizontal", 25))
sketch4.addConstraint(Sketcher.Constraint("Vertical", 26))
sketch4.addConstraint(Sketcher.Constraint("Horizontal", 27))
sketch4.addConstraint(Sketcher.Constraint("Vertical", 28))
sketch4.addConstraint(Sketcher.Constraint("Horizontal", 29))
sketch4.addConstraint(Sketcher.Constraint("Vertical", 30))
sketch4.addConstraint(Sketcher.Constraint("Horizontal", 31))
sketch4.addConstraint(Sketcher.Constraint("Vertical", 32))
sketch4.addConstraint(Sketcher.Constraint("Horizontal", 33))
sketch4.addConstraint(Sketcher.Constraint("Vertical", 34))
sketch4.addConstraint(Sketcher.Constraint("Horizontal", 35))
sketch4.addConstraint(Sketcher.Constraint("Vertical", 36))
sketch4.addConstraint(Sketcher.Constraint("Horizontal", 37))
sketch4.addConstraint(Sketcher.Constraint("Vertical", 38))
sketch4.addConstraint(Sketcher.Constraint("Horizontal", 39))
sketch4.addConstraint(Sketcher.Constraint("Vertical", 40))
sketch4.addConstraint(Sketcher.Constraint("Horizontal", 41))
sketch4.addConstraint(Sketcher.Constraint("Vertical", 42))
sketch4.addConstraint(Sketcher.Constraint("Horizontal", 43))
sketch4.addConstraint(Sketcher.Constraint("Vertical", 44))
sketch4.addConstraint(Sketcher.Constraint("Horizontal", 45))
sketch4.addConstraint(Sketcher.Constraint("Vertical", 46))
sketch4.addConstraint(Sketcher.Constraint("Horizontal", 47))
sketch4.addConstraint(Sketcher.Constraint("Vertical", 48))
sketch4.addConstraint(Sketcher.Constraint("Horizontal", 49))
sketch4.addConstraint(Sketcher.Constraint("Vertical", 50))
sketch4.addConstraint(Sketcher.Constraint("Horizontal", 51))
sketch4.addConstraint(Sketcher.Constraint("Vertical", 52))
sketch4.addConstraint(Sketcher.Constraint("Horizontal", 53))
sketch4.addConstraint(Sketcher.Constraint("Vertical", 54))
sketch4.addConstraint(Sketcher.Constraint("Horizontal", 55))
sketch4.addConstraint(Sketcher.Constraint("Vertical", 56))
sketch4.addConstraint(Sketcher.Constraint("Horizontal", 57))
sketch4.addConstraint(Sketcher.Constraint("Vertical", 58))
sketch4.addConstraint(Sketcher.Constraint("Horizontal", 59))
sketch4.addConstraint(Sketcher.Constraint("Vertical", 60))
sketch4.addConstraint(Sketcher.Constraint("Horizontal", 61))
sketch4.addConstraint(Sketcher.Constraint("Vertical", 62))
sketch4.addConstraint(Sketcher.Constraint("Horizontal", 63))
sketch4.addConstraint(Sketcher.Constraint("Vertical", 64))
sketch4.addConstraint(Sketcher.Constraint("Horizontal", 65))
sketch4.addConstraint(Sketcher.Constraint("Vertical", 66))
sketch4.addConstraint(Sketcher.Constraint("Horizontal", 67))
sketch4.addConstraint(Sketcher.Constraint("Vertical", 68))
sketch4.addConstraint(Sketcher.Constraint("Horizontal", 69))
sketch4.addConstraint(Sketcher.Constraint("Vertical", 70))
sketch4.addConstraint(Sketcher.Constraint("Horizontal", 71))
sketch4.addConstraint(Sketcher.Constraint("Vertical", 72))
sketch4.addConstraint(Sketcher.Constraint("Horizontal", 73))
sketch4.addConstraint(Sketcher.Constraint("Vertical", 74))
sketch4.addConstraint(Sketcher.Constraint("Horizontal", 75))
sketch4.addConstraint(Sketcher.Constraint("Vertical", 76))
sketch4.addConstraint(Sketcher.Constraint("Horizontal", 77))
sketch4.addConstraint(Sketcher.Constraint("Vertical", 78))
sketch4.addConstraint(Sketcher.Constraint("Horizontal", 79))
sketch4.addConstraint(Sketcher.Constraint("Vertical", 80))
sketch4.addConstraint(Sketcher.Constraint("Horizontal", 81))
sketch4.addConstraint(Sketcher.Constraint("Vertical", 82))
sketch4.addConstraint(Sketcher.Constraint("Horizontal", 83))
sketch4.addConstraint(Sketcher.Constraint("Vertical", 84))
sketch4.addConstraint(Sketcher.Constraint("Horizontal", 85))
sketch4.addConstraint(Sketcher.Constraint("Vertical", 86))
sketch4.addConstraint(Sketcher.Constraint("Horizontal", 87))
sketch4.addConstraint(Sketcher.Constraint("Horizontal", 3, 2, 6, 2))
sketch4.addConstraint(Sketcher.Constraint("Horizontal", 5, 2, 8, 2))
sketch4.addConstraint(Sketcher.Constraint("Horizontal", 7, 2, 10, 2))
sketch4.addConstraint(Sketcher.Constraint("Horizontal", 9, 2, 12, 2))
sketch4.addConstraint(Sketcher.Constraint("Horizontal", 11, 2, 14, 2))
sketch4.addConstraint(Sketcher.Constraint("Horizontal", 1, 2, 16, 2))
sketch4.addConstraint(Sketcher.Constraint("Horizontal", 17, 2, 20, 2))
sketch4.addConstraint(Sketcher.Constraint("Horizontal", 19, 2, 22, 2))
sketch4.addConstraint(Sketcher.Constraint("Horizontal", 21, 2, 24, 2))
sketch4.addConstraint(Sketcher.Constraint("Horizontal", 23, 2, 26, 2))
sketch4.addConstraint(Sketcher.Constraint("Horizontal", 25, 2, 28, 2))
sketch4.addConstraint(Sketcher.Constraint("Horizontal", 27, 2, 30, 2))
sketch4.addConstraint(Sketcher.Constraint("Horizontal", 29, 2, 32, 2))
sketch4.addConstraint(Sketcher.Constraint("Horizontal", 31, 2, 34, 2))
sketch4.addConstraint(Sketcher.Constraint("Horizontal", 33, 2, 36, 2))
sketch4.addConstraint(Sketcher.Constraint("Horizontal", 35, 2, 38, 2))
sketch4.addConstraint(Sketcher.Constraint("Horizontal", 37, 2, 40, 2))
sketch4.addConstraint(Sketcher.Constraint("Horizontal", 39, 2, 42, 2))
sketch4.addConstraint(Sketcher.Constraint("Horizontal", 47, 2, 50, 2))
sketch4.addConstraint(Sketcher.Constraint("Horizontal", 49, 2, 52, 2))
sketch4.addConstraint(Sketcher.Constraint("Horizontal", 51, 2, 54, 2))
sketch4.addConstraint(Sketcher.Constraint("Horizontal", 53, 2, 56, 2))
sketch4.addConstraint(Sketcher.Constraint("Horizontal", 55, 2, 58, 2))
sketch4.addConstraint(Sketcher.Constraint("Horizontal", 45, 2, 60, 2))
sketch4.addConstraint(Sketcher.Constraint("Horizontal", 61, 2, 64, 2))
sketch4.addConstraint(Sketcher.Constraint("Horizontal", 63, 2, 66, 2))
sketch4.addConstraint(Sketcher.Constraint("Horizontal", 65, 2, 68, 2))
sketch4.addConstraint(Sketcher.Constraint("Horizontal", 67, 2, 70, 2))
sketch4.addConstraint(Sketcher.Constraint("Horizontal", 69, 2, 72, 2))
sketch4.addConstraint(Sketcher.Constraint("Horizontal", 71, 2, 74, 2))
sketch4.addConstraint(Sketcher.Constraint("Horizontal", 73, 2, 76, 2))
sketch4.addConstraint(Sketcher.Constraint("Horizontal", 75, 2, 78, 2))
sketch4.addConstraint(Sketcher.Constraint("Horizontal", 77, 2, 80, 2))
sketch4.addConstraint(Sketcher.Constraint("Horizontal", 79, 2, 82, 2))
sketch4.addConstraint(Sketcher.Constraint("Horizontal", 81, 2, 84, 2))
sketch4.addConstraint(Sketcher.Constraint("Horizontal", 83, 2, 86, 2))
sketch4.addConstraint(Sketcher.Constraint("Vertical", 2, 2, 45, 2))
sketch4.addConstraint(Sketcher.Constraint("Vertical", 4, 2, 47, 2))
sketch4.addConstraint(Sketcher.Constraint("Vertical", 6, 2, 49, 2))
sketch4.addConstraint(Sketcher.Constraint("Vertical", 8, 2, 51, 2))
sketch4.addConstraint(Sketcher.Constraint("Vertical", 10, 2, 53, 2))
sketch4.addConstraint(Sketcher.Constraint("Vertical", 12, 2, 55, 2))
sketch4.addConstraint(Sketcher.Constraint("Vertical", 14, 2, 57, 2))
sketch4.addConstraint(Sketcher.Constraint("Vertical", 16, 2, 59, 2))
sketch4.addConstraint(Sketcher.Constraint("Equal", 5, 9))
sketch4.addConstraint(Sketcher.Constraint("Equal", 7, 11))
sketch4.addConstraint(Sketcher.Constraint("Equal", 9, 13))
sketch4.addConstraint(Sketcher.Constraint("Equal", 3, 15))
sketch4.addConstraint(Sketcher.Constraint("Equal", 19, 23))
sketch4.addConstraint(Sketcher.Constraint("Equal", 21, 25))
sketch4.addConstraint(Sketcher.Constraint("Equal", 23, 27))
sketch4.addConstraint(Sketcher.Constraint("Equal", 25, 29))
sketch4.addConstraint(Sketcher.Constraint("Equal", 27, 31))
sketch4.addConstraint(Sketcher.Constraint("Equal", 29, 33))
sketch4.addConstraint(Sketcher.Constraint("Equal", 31, 35))
sketch4.addConstraint(Sketcher.Constraint("Equal", 33, 37))
sketch4.addConstraint(Sketcher.Constraint("Equal", 35, 39))
sketch4.addConstraint(Sketcher.Constraint("Equal", 37, 41))
sketch4.addConstraint(Sketcher.Constraint("Equal", 39, 43))
sketch4.addConstraint(Sketcher.Constraint("Equal", 45, 61))
sketch4.addConstraint(Sketcher.Constraint("Equal", 43, 63))
sketch4.addConstraint(Sketcher.Constraint("Equal", 63, 65))
sketch4.addConstraint(Sketcher.Constraint("Equal", 65, 67))
sketch4.addConstraint(Sketcher.Constraint("Equal", 67, 69))
sketch4.addConstraint(Sketcher.Constraint("Equal", 69, 71))
sketch4.addConstraint(Sketcher.Constraint("Equal", 71, 73))
sketch4.addConstraint(Sketcher.Constraint("Equal", 73, 75))
sketch4.addConstraint(Sketcher.Constraint("Equal", 75, 77))
sketch4.addConstraint(Sketcher.Constraint("Equal", 77, 79))
sketch4.addConstraint(Sketcher.Constraint("Equal", 79, 81))
sketch4.addConstraint(Sketcher.Constraint("Equal", 81, 83))
sketch4.addConstraint(Sketcher.Constraint("Equal", 83, 85))
sketch4.addConstraint(Sketcher.Constraint("Equal", 85, 87))
sketch4.addConstraint(Sketcher.Constraint("Equal", 42, 44))
sketch4.addConstraint(Sketcher.Constraint("Equal", 16, 46))
sketch4.addConstraint(Sketcher.Constraint("Equal", 14, 48))
sketch4.addConstraint(Sketcher.Constraint("DistanceX", 1, 2, 1, 1, 27.0))
sketch4.addConstraint(Sketcher.Constraint("DistanceX", 3, 1, 3, 2, 30.0))
sketch4.addConstraint(Sketcher.Constraint("DistanceX", 5, 1, 5, 2, 20.0))
sketch4.addConstraint(Sketcher.Constraint("DistanceX", 7, 1, 7, 2, 70.0))
sketch4.addConstraint(Sketcher.Constraint("DistanceX", 17, 2, 17, 1, 23.0))
sketch4.addConstraint(Sketcher.Constraint("DistanceX", 19, 2, 19, 1, 12.0))
sketch4.addConstraint(Sketcher.Constraint("DistanceY", 0, 2, 0, 1, 15.0))
sketch4.addConstraint(Sketcher.Constraint("DistanceY", 2, 2, 2, 1, 5.0))
sketch4.addConstraint(Sketcher.Constraint("DistanceY", 4, 2, 4, 1, 6.0))
sketch4.addConstraint(Sketcher.Constraint("DistanceX", 0, 2, -1, 1, 73.865256))
sketch4.addConstraint(Sketcher.Constraint("DistanceY", -1, 1, 0, 2, 23.948268))
sketch4.addConstraint(Sketcher.Constraint("DistanceY", 44, 2, -1, 1, 42.654223))
sketch4.setExpression("Constraints[252]", "Params.sketch4_width")
sketch4.setExpression("Constraints[253]", "Params.sketch4_width2")
sketch4.setExpression("Constraints[254]", "Params.sketch4_width3")
sketch4.setExpression("Constraints[255]", "Params.sketch4_width4")
sketch4.setExpression("Constraints[256]", "Params.sketch4_width5")
pad4 = body4.newObject("PartDesign::Pad", "Pad003")
pad4.Profile = sketch4
pad4.setExpression("Length", "Params.pad4_length")

doc.recompute()
